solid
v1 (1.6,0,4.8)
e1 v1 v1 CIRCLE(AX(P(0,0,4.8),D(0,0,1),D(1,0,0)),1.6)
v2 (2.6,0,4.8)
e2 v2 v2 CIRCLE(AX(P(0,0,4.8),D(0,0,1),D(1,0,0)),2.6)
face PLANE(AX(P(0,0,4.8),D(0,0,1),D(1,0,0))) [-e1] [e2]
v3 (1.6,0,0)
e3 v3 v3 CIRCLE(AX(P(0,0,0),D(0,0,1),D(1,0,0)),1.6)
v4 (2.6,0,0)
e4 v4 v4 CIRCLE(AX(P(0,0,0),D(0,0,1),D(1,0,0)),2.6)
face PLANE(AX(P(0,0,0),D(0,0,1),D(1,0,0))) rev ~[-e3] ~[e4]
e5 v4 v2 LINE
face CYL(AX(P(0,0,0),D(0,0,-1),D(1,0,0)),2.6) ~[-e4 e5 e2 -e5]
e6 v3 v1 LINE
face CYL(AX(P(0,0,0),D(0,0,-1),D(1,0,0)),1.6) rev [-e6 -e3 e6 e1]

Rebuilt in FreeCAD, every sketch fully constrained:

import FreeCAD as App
import Part
import Sketcher

doc = App.newDocument("Part")
body = doc.addObject("PartDesign::Body", "Body")

sketch1 = doc.addObject("Sketcher::SketchObject", "Sketch")
body.addObject(sketch1)
sketch1.AttachmentSupport = (doc.XY_Plane, [""])
sketch1.MapMode = "FlatFace"
sketch1.addGeometry(Part.Circle(App.Vector(0, 0, 0), App.Vector(0, 0, 1), 2.6), False)
sketch1.addGeometry(Part.Circle(App.Vector(0, 0, 0), App.Vector(0, 0, 1), 1.6), False)
sketch1.addConstraint(Sketcher.Constraint("Coincident", 0, 3, -1, 1))
sketch1.addConstraint(Sketcher.Constraint("Coincident", 1, 3, -1, 1))
sketch1.addConstraint(Sketcher.Constraint("Diameter", 1, 3.2))
sketch1.addConstraint(Sketcher.Constraint("Diameter", 0, 5.2))
pad1 = doc.addObject("PartDesign::Pad", "Pad")
body.addObject(pad1)
pad1.Profile = sketch1
pad1.Length = 4.8

doc.recompute()
